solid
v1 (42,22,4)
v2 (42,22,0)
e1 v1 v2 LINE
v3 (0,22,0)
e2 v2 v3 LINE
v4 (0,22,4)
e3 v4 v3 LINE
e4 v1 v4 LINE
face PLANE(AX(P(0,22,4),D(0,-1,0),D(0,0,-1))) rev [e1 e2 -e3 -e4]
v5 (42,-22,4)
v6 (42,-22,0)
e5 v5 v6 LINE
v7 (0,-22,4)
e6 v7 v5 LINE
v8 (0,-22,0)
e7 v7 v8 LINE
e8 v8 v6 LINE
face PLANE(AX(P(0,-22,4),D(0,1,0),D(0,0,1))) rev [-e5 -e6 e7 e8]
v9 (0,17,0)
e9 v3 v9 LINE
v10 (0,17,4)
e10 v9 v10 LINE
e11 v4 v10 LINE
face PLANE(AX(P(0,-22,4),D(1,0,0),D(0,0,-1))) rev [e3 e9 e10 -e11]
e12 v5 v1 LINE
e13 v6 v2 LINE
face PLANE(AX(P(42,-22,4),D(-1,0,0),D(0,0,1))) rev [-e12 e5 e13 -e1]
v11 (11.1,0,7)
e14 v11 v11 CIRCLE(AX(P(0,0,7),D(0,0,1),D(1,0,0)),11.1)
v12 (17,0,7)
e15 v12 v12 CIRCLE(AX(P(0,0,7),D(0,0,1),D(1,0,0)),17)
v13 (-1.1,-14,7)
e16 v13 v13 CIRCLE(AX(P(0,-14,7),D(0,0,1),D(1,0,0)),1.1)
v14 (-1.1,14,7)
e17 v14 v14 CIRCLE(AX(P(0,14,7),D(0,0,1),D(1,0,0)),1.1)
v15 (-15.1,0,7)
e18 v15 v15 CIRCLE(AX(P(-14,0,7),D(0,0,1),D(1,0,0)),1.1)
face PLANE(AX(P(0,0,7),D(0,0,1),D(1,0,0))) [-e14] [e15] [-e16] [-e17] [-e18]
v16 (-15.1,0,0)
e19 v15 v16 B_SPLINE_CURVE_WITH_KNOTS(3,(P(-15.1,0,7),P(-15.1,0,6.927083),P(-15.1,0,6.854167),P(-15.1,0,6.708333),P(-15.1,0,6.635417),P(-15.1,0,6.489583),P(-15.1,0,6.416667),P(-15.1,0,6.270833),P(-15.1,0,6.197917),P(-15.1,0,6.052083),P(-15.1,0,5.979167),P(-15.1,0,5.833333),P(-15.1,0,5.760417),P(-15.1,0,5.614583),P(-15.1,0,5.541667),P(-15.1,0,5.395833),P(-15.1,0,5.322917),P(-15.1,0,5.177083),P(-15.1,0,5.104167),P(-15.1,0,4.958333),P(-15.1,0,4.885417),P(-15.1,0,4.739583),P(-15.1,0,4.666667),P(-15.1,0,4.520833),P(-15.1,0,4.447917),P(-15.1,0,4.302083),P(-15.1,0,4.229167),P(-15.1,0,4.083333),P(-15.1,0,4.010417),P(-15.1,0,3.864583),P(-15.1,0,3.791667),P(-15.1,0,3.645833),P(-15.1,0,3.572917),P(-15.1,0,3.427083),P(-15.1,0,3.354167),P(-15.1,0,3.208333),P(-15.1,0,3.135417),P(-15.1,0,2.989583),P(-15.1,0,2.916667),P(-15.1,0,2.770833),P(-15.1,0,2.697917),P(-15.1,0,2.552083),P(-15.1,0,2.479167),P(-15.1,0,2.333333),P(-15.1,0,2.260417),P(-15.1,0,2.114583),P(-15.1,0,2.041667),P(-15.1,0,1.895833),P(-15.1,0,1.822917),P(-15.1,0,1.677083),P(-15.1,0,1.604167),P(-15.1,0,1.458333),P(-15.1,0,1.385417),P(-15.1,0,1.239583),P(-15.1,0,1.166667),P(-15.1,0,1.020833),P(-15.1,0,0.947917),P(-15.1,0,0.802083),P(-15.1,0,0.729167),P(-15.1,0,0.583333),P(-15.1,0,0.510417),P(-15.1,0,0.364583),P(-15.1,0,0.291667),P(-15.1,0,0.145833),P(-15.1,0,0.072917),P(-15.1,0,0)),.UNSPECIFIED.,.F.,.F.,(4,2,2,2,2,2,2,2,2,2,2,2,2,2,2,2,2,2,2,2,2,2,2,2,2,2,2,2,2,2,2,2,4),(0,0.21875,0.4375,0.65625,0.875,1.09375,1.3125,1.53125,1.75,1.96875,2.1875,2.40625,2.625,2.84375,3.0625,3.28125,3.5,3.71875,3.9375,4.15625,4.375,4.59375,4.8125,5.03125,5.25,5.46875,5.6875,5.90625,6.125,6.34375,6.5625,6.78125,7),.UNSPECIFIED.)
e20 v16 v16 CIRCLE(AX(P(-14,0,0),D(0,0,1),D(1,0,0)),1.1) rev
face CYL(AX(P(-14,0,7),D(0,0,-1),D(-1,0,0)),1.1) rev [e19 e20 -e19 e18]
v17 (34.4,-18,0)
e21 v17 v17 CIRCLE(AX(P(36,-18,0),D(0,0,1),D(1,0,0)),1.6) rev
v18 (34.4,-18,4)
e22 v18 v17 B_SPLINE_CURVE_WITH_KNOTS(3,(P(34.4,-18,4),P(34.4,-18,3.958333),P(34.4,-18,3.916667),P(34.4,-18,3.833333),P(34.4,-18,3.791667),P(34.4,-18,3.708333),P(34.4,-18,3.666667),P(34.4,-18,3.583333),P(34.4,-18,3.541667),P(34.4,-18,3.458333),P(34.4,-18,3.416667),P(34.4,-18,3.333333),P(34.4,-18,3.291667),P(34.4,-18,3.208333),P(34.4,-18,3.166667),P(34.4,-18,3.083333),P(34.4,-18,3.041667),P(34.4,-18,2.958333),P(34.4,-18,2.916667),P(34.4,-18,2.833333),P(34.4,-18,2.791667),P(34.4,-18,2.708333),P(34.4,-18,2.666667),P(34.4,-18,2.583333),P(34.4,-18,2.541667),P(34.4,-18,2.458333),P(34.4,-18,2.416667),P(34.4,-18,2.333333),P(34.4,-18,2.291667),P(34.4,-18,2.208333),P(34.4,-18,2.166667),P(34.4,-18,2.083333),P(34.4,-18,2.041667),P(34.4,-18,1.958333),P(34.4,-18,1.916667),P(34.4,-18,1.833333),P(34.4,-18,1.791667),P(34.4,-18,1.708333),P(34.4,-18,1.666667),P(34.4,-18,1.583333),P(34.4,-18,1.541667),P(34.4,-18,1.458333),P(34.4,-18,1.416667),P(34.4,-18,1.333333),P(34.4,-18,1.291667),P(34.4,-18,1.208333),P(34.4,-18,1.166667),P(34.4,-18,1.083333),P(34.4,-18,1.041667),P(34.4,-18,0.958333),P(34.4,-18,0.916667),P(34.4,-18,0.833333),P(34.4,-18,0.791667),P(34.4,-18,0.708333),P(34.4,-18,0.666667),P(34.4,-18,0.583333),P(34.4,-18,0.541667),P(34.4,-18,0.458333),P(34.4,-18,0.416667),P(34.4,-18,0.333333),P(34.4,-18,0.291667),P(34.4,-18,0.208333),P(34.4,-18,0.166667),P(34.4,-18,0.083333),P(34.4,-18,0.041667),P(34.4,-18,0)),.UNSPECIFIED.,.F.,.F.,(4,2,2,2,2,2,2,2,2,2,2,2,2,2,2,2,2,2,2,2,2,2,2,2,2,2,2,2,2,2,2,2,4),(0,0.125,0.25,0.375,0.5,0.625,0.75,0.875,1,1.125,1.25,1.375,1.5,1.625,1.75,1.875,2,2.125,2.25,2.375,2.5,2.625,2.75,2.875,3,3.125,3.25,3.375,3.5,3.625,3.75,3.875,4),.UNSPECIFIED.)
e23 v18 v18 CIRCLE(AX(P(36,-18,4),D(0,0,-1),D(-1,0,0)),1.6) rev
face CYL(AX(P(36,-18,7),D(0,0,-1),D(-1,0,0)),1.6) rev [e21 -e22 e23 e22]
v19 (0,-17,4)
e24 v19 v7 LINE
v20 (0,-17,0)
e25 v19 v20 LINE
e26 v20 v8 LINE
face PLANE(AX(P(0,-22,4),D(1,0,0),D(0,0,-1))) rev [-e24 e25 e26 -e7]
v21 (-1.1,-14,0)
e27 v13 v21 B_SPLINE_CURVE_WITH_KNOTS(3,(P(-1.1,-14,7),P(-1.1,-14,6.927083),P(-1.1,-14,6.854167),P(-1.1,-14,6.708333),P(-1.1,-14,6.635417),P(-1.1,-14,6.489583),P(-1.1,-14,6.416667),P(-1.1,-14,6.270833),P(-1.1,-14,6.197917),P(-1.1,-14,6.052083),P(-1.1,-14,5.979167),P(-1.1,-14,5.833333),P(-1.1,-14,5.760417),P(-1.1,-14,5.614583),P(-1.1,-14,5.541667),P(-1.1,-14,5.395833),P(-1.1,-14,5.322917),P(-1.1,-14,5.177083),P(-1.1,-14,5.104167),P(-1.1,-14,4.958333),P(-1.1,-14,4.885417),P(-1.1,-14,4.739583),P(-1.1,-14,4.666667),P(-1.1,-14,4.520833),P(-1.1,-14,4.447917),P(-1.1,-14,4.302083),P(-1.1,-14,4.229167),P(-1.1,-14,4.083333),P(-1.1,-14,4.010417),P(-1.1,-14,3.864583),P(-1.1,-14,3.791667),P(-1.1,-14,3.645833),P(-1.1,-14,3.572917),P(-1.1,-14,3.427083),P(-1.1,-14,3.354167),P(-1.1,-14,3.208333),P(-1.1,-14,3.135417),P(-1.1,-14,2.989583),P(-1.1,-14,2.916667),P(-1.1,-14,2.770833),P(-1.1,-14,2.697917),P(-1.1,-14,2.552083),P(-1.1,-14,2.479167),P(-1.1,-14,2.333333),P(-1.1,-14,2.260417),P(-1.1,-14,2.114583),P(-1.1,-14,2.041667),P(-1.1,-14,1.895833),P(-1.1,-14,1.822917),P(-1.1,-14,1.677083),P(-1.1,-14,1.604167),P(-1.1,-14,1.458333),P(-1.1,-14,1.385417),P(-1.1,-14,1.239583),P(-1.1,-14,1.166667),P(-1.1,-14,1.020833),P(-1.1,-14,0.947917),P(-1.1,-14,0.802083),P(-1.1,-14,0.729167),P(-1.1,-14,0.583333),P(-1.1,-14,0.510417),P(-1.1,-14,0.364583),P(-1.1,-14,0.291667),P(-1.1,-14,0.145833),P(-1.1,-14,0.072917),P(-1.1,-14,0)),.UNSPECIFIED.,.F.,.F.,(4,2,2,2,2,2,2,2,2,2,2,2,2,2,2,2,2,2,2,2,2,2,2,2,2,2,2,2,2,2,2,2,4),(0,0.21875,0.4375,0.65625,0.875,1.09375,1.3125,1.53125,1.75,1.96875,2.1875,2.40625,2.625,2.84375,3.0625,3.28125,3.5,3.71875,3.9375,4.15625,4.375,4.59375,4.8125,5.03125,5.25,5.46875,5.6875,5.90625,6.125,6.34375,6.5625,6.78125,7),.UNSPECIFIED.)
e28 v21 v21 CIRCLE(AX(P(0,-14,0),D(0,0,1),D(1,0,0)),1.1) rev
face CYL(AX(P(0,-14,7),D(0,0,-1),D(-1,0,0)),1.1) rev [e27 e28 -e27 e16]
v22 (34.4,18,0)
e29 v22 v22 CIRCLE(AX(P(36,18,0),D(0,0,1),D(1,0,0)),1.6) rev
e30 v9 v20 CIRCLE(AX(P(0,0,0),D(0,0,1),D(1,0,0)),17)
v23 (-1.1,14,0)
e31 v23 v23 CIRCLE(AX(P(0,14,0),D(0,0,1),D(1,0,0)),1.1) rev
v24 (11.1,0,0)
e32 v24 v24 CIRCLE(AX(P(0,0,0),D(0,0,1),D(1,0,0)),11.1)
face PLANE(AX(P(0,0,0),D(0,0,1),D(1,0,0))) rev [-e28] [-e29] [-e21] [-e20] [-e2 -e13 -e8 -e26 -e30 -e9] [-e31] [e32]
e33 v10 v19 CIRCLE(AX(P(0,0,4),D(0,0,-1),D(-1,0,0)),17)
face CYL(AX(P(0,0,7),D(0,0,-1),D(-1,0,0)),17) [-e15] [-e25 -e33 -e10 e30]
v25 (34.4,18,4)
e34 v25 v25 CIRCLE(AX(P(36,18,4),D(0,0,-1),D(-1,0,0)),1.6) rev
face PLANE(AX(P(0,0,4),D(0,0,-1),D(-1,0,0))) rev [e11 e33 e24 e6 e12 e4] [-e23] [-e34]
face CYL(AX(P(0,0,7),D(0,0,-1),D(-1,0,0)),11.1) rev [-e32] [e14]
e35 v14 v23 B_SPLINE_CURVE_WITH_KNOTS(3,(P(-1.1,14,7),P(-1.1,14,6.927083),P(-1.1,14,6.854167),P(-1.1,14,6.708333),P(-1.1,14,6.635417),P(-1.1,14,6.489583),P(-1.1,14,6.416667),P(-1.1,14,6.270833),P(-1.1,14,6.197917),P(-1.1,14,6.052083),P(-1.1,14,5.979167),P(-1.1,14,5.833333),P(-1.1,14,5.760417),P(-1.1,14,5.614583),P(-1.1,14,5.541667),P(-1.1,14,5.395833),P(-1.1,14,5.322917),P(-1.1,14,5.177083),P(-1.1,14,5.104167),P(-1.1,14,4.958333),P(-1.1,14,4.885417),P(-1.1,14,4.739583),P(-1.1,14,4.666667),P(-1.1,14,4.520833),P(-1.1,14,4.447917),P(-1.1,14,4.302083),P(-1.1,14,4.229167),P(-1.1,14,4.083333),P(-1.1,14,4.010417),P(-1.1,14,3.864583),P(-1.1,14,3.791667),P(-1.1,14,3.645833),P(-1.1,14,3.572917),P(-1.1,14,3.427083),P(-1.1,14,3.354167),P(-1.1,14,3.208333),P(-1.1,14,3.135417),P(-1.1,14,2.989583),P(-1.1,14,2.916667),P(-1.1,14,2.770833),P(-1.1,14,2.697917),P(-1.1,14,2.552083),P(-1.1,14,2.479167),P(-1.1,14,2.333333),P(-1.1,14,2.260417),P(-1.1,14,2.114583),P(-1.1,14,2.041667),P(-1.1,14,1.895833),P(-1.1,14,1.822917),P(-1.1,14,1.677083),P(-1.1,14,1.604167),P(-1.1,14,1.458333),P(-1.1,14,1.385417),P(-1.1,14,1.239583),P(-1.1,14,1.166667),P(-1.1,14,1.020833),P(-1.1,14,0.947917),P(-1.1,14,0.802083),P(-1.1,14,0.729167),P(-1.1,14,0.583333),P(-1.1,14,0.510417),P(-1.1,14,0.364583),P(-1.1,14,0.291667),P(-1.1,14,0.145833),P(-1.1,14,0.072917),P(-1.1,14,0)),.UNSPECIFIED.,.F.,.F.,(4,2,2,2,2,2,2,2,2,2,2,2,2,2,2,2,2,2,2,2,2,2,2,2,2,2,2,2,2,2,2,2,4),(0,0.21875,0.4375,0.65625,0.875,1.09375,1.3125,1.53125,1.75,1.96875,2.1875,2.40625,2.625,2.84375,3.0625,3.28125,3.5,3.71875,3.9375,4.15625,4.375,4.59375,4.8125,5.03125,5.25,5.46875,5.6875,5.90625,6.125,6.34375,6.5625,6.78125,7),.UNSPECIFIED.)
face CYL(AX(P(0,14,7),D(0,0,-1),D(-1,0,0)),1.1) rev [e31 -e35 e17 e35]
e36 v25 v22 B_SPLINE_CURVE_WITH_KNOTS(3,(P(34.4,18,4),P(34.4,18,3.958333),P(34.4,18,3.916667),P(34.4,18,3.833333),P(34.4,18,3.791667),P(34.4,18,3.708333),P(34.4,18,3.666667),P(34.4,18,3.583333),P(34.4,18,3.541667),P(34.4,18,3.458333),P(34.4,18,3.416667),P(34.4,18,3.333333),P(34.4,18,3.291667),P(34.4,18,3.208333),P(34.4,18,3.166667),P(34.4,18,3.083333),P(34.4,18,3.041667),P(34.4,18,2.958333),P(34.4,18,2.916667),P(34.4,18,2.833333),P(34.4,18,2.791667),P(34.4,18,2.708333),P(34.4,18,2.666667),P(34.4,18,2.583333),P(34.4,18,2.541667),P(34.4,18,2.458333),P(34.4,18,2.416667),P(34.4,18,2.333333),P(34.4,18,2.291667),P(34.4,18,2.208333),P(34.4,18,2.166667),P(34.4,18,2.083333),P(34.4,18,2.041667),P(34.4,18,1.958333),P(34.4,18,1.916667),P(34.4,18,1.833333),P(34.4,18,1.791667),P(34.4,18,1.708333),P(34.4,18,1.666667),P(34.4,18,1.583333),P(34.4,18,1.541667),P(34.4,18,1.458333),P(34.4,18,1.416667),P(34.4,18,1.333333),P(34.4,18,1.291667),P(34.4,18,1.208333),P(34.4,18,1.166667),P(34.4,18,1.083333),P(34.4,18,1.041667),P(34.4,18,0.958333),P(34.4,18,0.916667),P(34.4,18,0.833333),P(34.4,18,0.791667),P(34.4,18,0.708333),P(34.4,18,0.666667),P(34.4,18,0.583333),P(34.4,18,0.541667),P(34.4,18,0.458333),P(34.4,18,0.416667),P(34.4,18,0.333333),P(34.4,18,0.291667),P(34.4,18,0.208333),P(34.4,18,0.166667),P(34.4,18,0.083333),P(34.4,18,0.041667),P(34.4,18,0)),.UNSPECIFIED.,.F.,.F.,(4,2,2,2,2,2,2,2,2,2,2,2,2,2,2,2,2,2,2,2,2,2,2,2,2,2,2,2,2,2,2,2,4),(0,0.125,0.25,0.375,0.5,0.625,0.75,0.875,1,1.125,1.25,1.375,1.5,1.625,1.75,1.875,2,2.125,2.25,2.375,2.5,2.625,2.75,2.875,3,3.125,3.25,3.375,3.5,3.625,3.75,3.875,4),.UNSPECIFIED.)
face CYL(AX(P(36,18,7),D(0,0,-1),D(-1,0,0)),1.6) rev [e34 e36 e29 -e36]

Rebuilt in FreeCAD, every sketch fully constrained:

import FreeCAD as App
import Part
import Sketcher
from FreeCAD import Vector


def add_polygon(sketch, points):
    """Adds a closed chain of lines whose ends are joined by coincident constraints."""
    first, n = sketch.GeometryCount, len(points)
    for a, b in zip(points, points[1:] + points[:1]):
        sketch.addGeometry(Part.LineSegment(App.Vector(*a, 0), App.Vector(*b, 0)), False)
    for i in range(n):
        sketch.addConstraint(Sketcher.Constraint("Coincident", first + i, 2, first + (i + 1) % n, 1))

doc = App.newDocument("Part")
body = doc.addObject("PartDesign::Body", "Body")

# Sketch on XY plane
sketch1 = body.newObject("Sketcher::SketchObject", "Sketch")
sketch1.AttachmentSupport = (doc.getObject("XY_Plane"), [""])
sketch1.MapMode = "FlatFace"
sketch1.addGeometry([
    Part.Circle(Vector(0, 0, 0), Vector(0, 0, 1), 17),
    Part.Circle(Vector(0, 0, 0), Vector(0, 0, 1), 11),
], False)
sketch1.addConstraint([
    Sketcher.Constraint("Coincident", 0, 3, -1, 1),
    Sketcher.Constraint("Coincident", 1, 3, -1, 1),
    Sketcher.Constraint("Diameter", 0, 34.0),
    Sketcher.Constraint("Diameter", 1, 22.2),
])
pad1 = body.newObject("PartDesign::Pad", "Pad")
pad1.Profile = sketch1
pad1.Length = 7

# Sketch on XY plane
sketch2 = body.newObject("Sketcher::SketchObject", "Sketch001")
sketch2.AttachmentSupport = (doc.getObject("XY_Plane"), [""])
sketch2.MapMode = "FlatFace"
add_polygon(sketch2, [(0, 22), (0, -22), (42, -22), (42, 22)])  # lines 0-3
sketch2.addConstraint([
    Sketcher.Constraint("Vertical", 0),
    Sketcher.Constraint("Horizontal", 1),
    Sketcher.Constraint("Vertical", 2),
    Sketcher.Constraint("Horizontal", 3),
    Sketcher.Constraint("Symmetric", 0, 2, 3, 2, -1, 1),
    Sketcher.Constraint("DistanceX", 1, 1, 1, 2, 42.0),
    Sketcher.Constraint("DistanceY", 0, 2, 0, 1, 44.0),
])
pad2 = body.newObject("PartDesign::Pad", "Pad001")
pad2.Profile = sketch2
pad2.Length = 4

# Sketch on XY plane
sketch3 = body.newObject("Sketcher::SketchObject", "Sketch002")
sketch3.AttachmentSupport = (doc.getObject("XY_Plane"), [""])
sketch3.MapMode = "FlatFace"
sketch3.AttachmentOffset = App.Placement(Vector(0, 0, -50), App.Rotation())
sketch3.addGeometry(Part.Circle(Vector(0, 0, 0), Vector(0, 0, 1), 11), False)
sketch3.addConstraint([
    Sketcher.Constraint("Coincident", 0, 3, -1, 1),
    Sketcher.Constraint("Diameter", 0, 22.2),
])
pocket1 = body.newObject("PartDesign::Pocket", "Pocket")
pocket1.Profile = sketch3
pocket1.Type = "ThroughAll"
pocket1.Reversed = True

# Sketch on XY plane
sketch4 = body.newObject("Sketcher::SketchObject", "Sketch003")
sketch4.AttachmentSupport = (doc.getObject("XY_Plane"), [""])
sketch4.MapMode = "FlatFace"
sketch4.AttachmentOffset = App.Placement(Vector(0, 0, -50), App.Rotation())
sketch4.addGeometry([
    Part.Circle(Vector(36, -18, 0), Vector(0, 0, 1), 1.6),
    Part.Circle(Vector(36, 18, 0), Vector(0, 0, 1), 1.6),
], False)
sketch4.addConstraint([
    Sketcher.Constraint("Equal", 0, 1),
    Sketcher.Constraint("Symmetric", 0, 3, 1, 3, -1),
    Sketcher.Constraint("Diameter", 0, 3.2),
    Sketcher.Constraint("DistanceX", -1, 1, 0, 3, 36.0),
    Sketcher.Constraint("DistanceY", 0, 3, -1, 1, 18.0),
])
pocket2 = body.newObject("PartDesign::Pocket", "Pocket001")
pocket2.Profile = sketch4
pocket2.Type = "ThroughAll"
pocket2.Reversed = True

# Sketch on XY plane
sketch5 = body.newObject("Sketcher::SketchObject", "Sketch004")
sketch5.AttachmentSupport = (doc.getObject("XY_Plane"), [""])
sketch5.MapMode = "FlatFace"
sketch5.AttachmentOffset = App.Placement(Vector(0, 0, -50), App.Rotation())
sketch5.addGeometry([
    Part.Circle(Vector(-14, 0, 0), Vector(0, 0, 1), 1.1),
    Part.Circle(Vector(0, -14, 0), Vector(0, 0, 1), 1.1),
    Part.Circle(Vector(0, 14, 0), Vector(0, 0, 1), 1.1),
], False)
sketch5.addConstraint([
    Sketcher.Constraint("Equal", 0, 1),
    Sketcher.Constraint("Equal", 1, 2),
    Sketcher.Constraint("Symmetric", 1, 3, 2, 3, -1, 1),
    Sketcher.Constraint("PointOnObject", 0, 3, -1),
    Sketcher.Constraint("PointOnObject", 1, 3, -2),
    Sketcher.Constraint("Diameter", 0, 2.2),
    Sketcher.Constraint("DistanceX", 0, 3, -1, 1, 14.0),
    Sketcher.Constraint("DistanceY", 1, 3, -1, 1, 14.0),
])
pocket3 = body.newObject("PartDesign::Pocket", "Pocket002")
pocket3.Profile = sketch5
pocket3.Type = "ThroughAll"
pocket3.Reversed = True

doc.recompute()
